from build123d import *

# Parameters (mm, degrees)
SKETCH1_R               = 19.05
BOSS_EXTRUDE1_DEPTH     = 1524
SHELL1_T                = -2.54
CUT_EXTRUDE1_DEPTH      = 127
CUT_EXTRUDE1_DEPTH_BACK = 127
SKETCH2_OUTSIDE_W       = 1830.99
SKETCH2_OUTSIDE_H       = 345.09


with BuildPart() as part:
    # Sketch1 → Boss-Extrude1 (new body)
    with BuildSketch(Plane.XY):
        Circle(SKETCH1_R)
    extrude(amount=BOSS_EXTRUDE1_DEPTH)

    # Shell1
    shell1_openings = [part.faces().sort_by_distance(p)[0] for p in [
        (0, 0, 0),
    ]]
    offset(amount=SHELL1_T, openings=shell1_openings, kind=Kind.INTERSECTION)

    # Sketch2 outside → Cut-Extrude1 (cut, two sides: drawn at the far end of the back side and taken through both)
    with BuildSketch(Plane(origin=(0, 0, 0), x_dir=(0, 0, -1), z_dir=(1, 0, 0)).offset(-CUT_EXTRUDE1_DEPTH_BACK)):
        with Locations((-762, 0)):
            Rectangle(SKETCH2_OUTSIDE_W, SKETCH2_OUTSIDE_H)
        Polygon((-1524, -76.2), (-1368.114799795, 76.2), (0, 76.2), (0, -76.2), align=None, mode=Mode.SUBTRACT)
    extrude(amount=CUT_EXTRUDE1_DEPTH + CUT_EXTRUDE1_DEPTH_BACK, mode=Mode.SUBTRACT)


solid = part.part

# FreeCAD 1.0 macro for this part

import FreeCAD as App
import Part
import Sketcher
Q = App.Units.Quantity


def faces_at(feature, points):
    """Names of the faces that lie closest to the given points."""
    faces = feature.Shape.Faces
    near = lambda p: min(range(len(faces)), key=lambda i: faces[i].distToShape(Part.Vertex(*p))[0])
    return sorted({f"Face{near(p) + 1}" for p in points})

doc = App.newDocument("Part")
body = doc.addObject("PartDesign::Body", "Body")

# Sketch on XY plane
sketch1 = doc.addObject("Sketcher::SketchObject", "Sketch")
body.addObject(sketch1)
sketch1.AttachmentSupport = (doc.XY_Plane, [""])
sketch1.MapMode = "FlatFace"
sketch1.addGeometry(Part.Circle(App.Vector(0, 0, 0), App.Vector(0, 0, 1), 19), False)
sketch1.addConstraint([
    Sketcher.Constraint("Coincident", 0, 3, -1, 1),
    Sketcher.Constraint("Diameter", 0, Q("1.5 in")),
])
pad1 = doc.addObject("PartDesign::Pad", "Pad")
body.addObject(pad1)
pad1.Profile = sketch1
pad1.Length = Q("60 in")
doc.recompute()

thickness = doc.addObject("PartDesign::Thickness", "Thickness")
body.addObject(thickness)
thickness.Base = (pad1, faces_at(pad1, [(0, 0, 0)]))
thickness.Value = Q("0.1 in")
thickness.Reversed = True
thickness.Join = "Intersection"

# Sketch on YZ plane
sketch2 = doc.addObject("Sketcher::SketchObject", "Sketch001")
body.addObject(sketch2)
sketch2.AttachmentSupport = (doc.YZ_Plane, [""])
sketch2.MapMode = "FlatFace"
sketch2.addGeometry([
    Part.LineSegment(App.Vector(173, 1677, 0), App.Vector(-173, 1677, 0)),  # 0
    Part.LineSegment(App.Vector(-173, 1677, 0), App.Vector(-173, -153, 0)),  # 1
    Part.LineSegment(App.Vector(-173, -153, 0), App.Vector(173, -153, 0)),  # 2
    Part.LineSegment(App.Vector(173, -153, 0), App.Vector(173, 1677, 0)),  # 3
    Part.LineSegment(App.Vector(-76, 0, 0), App.Vector(-76, 1524, 0)),  # 4
    Part.LineSegment(App.Vector(-76, 1524, 0), App.Vector(76, 1368, 0)),  # 5
    Part.LineSegment(App.Vector(76, 1368, 0), App.Vector(76, 0, 0)),  # 6
    Part.LineSegment(App.Vector(76, 0, 0), App.Vector(-76, 0, 0)),  # 7
], False)
sketch2.addConstraint([
    Sketcher.Constraint("Coincident", 0, 2, 1, 1),
    Sketcher.Constraint("Coincident", 1, 2, 2, 1),
    Sketcher.Constraint("Coincident", 2, 2, 3, 1),
    Sketcher.Constraint("Coincident", 3, 2, 0, 1),
    Sketcher.Constraint("Coincident", 4, 2, 5, 1),
    Sketcher.Constraint("Coincident", 5, 2, 6, 1),
    Sketcher.Constraint("Coincident", 6, 2, 7, 1),
    Sketcher.Constraint("Coincident", 7, 2, 4, 1),
    Sketcher.Constraint("Horizontal", 0),
    Sketcher.Constraint("Vertical", 1),
    Sketcher.Constraint("Horizontal", 2),
    Sketcher.Constraint("Vertical", 3),
    Sketcher.Constraint("Vertical", 4),
    Sketcher.Constraint("Vertical", 6),
    Sketcher.Constraint("Horizontal", 7),
    Sketcher.Constraint("Symmetric", 6, 2, 7, 2, -1, 1),
    Sketcher.Constraint("DistanceX", 7, 2, 7, 1, Q("6 in")),
    Sketcher.Constraint("DistanceY", 4, 1, 4, 2, Q("60 in")),
    Sketcher.Constraint("DistanceX", 0, 2, 0, 1, Q("345.09 mm")),
    Sketcher.Constraint("DistanceY", 1, 2, 1, 1, Q("1830.99 mm")),
    Sketcher.Constraint("DistanceY", 6, 2, 6, 1, Q("1368.1148 mm")),
    Sketcher.Constraint("DistanceX", 0, 2, -1, 1, Q("172.545 mm")),
    Sketcher.Constraint("DistanceY", -1, 1, 0, 2, Q("1677.495 mm")),
])
pocket1 = doc.addObject("PartDesign::Pocket", "Pocket")
body.addObject(pocket1)
pocket1.Profile = sketch2
pocket1.Type = "ThroughAll"
pocket1.Midplane = True

doc.recompute()
